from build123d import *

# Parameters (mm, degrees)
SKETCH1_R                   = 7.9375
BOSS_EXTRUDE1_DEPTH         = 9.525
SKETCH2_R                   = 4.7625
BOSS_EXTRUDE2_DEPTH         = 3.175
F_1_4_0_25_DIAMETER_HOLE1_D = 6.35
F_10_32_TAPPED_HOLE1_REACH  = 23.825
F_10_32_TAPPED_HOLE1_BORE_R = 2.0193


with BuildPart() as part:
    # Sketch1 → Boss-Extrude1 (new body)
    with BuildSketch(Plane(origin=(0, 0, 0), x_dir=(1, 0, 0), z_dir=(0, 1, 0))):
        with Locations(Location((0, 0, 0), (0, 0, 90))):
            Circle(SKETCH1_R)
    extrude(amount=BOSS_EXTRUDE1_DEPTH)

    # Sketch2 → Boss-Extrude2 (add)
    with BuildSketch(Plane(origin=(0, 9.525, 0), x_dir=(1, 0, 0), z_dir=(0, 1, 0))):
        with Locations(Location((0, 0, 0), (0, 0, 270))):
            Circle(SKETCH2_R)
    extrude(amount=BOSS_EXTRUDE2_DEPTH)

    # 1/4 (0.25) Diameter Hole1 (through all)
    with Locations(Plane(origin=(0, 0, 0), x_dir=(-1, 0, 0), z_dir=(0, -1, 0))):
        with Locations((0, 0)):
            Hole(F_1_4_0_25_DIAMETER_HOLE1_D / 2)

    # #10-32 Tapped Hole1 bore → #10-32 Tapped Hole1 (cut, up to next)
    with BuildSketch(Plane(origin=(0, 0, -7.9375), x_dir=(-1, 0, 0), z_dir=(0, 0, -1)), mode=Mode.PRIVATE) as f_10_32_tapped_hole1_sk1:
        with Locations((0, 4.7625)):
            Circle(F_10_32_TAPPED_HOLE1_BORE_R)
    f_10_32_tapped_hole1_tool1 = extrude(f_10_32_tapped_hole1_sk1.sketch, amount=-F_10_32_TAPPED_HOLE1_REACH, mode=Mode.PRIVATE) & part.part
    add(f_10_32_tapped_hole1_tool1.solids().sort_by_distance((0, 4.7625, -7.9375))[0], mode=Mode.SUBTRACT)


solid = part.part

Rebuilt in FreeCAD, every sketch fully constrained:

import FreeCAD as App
import Part
import Sketcher
Q = App.Units.Quantity

doc = App.newDocument("Part")
body = doc.addObject("PartDesign::Body", "Body")

# Sketch on XZ plane
sketch1 = doc.addObject("Sketcher::SketchObject", "Sketch")
body.addObject(sketch1)
sketch1.AttachmentSupport = (doc.XZ_Plane, [""])
sketch1.MapMode = "FlatFace"
sketch1.addGeometry(Part.Circle(App.Vector(0, 0, 0), App.Vector(0, 0, 1), 8), False)
sketch1.addConstraint([
    Sketcher.Constraint("Coincident", 0, 3, -1, 1),
    Sketcher.Constraint("Diameter", 0, Q("0.625 in")),
])
pad1 = doc.addObject("PartDesign::Pad", "Pad")
body.addObject(pad1)
pad1.Profile = sketch1
pad1.Length = Q("0.375 in")
pad1.Reversed = True

# Sketch on XZ plane
sketch2 = doc.addObject("Sketcher::SketchObject", "Sketch001")
body.addObject(sketch2)
sketch2.AttachmentSupport = (doc.XZ_Plane, [""])
sketch2.MapMode = "FlatFace"
sketch2.AttachmentOffset = App.Placement(App.Vector(0, 0, -0.375 * 25.4), App.Rotation())
sketch2.addGeometry(Part.Circle(App.Vector(0, 0, 0), App.Vector(0, 0, 1), 4.8), False)
sketch2.addConstraint([
    Sketcher.Constraint("Coincident", 0, 3, -1, 1),
    Sketcher.Constraint("Diameter", 0, Q("0.375 in")),
])
pad2 = doc.addObject("PartDesign::Pad", "Pad001")
body.addObject(pad2)
pad2.Profile = sketch2
pad2.Length = Q("0.125 in")
pad2.Reversed = True

# Sketch on XZ plane
sketch3 = doc.addObject("Sketcher::SketchObject", "Sketch002")
body.addObject(sketch3)
sketch3.AttachmentSupport = (doc.XZ_Plane, [""])
sketch3.MapMode = "FlatFace"
sketch3.addGeometry(Part.Circle(App.Vector(0, 0, 0), App.Vector(0, 0, 1), 3.2), False)
sketch3.addConstraint([
    Sketcher.Constraint("Coincident", 0, 3, -1, 1),
    Sketcher.Constraint("Diameter", 0, Q("0.25 in")),
])
doc.recompute()
hole = doc.addObject("PartDesign::Hole", "Hole")
body.addObject(hole)
hole.Profile = sketch3
hole.ThreadType = "None"
hole.Diameter = Q("0.25 in")
hole.DepthType = "ThroughAll"

# Sketch on XY plane
sketch4 = doc.addObject("Sketcher::SketchObject", "Sketch003")
body.addObject(sketch4)
sketch4.AttachmentSupport = (doc.XY_Plane, [""])
sketch4.MapMode = "FlatFace"
sketch4.AttachmentOffset = App.Placement(App.Vector(0, 0, -0.3125 * 25.4), App.Rotation())
sketch4.addGeometry(Part.Circle(App.Vector(0, 4.8, 0), App.Vector(0, 0, 1), 2), False)
sketch4.addConstraint([
    Sketcher.Constraint("PointOnObject", 0, 3, -2),
    Sketcher.Constraint("Diameter", 0, Q("0.159 in")),
    Sketcher.Constraint("DistanceY", -1, 1, 0, 3, Q("0.1875 in")),
])
pocket1 = doc.addObject("PartDesign::Pocket", "Pocket")
body.addObject(pocket1)
pocket1.Profile = sketch4
pocket1.Length = 5.487387
pocket1.Reversed = True

doc.recompute()
